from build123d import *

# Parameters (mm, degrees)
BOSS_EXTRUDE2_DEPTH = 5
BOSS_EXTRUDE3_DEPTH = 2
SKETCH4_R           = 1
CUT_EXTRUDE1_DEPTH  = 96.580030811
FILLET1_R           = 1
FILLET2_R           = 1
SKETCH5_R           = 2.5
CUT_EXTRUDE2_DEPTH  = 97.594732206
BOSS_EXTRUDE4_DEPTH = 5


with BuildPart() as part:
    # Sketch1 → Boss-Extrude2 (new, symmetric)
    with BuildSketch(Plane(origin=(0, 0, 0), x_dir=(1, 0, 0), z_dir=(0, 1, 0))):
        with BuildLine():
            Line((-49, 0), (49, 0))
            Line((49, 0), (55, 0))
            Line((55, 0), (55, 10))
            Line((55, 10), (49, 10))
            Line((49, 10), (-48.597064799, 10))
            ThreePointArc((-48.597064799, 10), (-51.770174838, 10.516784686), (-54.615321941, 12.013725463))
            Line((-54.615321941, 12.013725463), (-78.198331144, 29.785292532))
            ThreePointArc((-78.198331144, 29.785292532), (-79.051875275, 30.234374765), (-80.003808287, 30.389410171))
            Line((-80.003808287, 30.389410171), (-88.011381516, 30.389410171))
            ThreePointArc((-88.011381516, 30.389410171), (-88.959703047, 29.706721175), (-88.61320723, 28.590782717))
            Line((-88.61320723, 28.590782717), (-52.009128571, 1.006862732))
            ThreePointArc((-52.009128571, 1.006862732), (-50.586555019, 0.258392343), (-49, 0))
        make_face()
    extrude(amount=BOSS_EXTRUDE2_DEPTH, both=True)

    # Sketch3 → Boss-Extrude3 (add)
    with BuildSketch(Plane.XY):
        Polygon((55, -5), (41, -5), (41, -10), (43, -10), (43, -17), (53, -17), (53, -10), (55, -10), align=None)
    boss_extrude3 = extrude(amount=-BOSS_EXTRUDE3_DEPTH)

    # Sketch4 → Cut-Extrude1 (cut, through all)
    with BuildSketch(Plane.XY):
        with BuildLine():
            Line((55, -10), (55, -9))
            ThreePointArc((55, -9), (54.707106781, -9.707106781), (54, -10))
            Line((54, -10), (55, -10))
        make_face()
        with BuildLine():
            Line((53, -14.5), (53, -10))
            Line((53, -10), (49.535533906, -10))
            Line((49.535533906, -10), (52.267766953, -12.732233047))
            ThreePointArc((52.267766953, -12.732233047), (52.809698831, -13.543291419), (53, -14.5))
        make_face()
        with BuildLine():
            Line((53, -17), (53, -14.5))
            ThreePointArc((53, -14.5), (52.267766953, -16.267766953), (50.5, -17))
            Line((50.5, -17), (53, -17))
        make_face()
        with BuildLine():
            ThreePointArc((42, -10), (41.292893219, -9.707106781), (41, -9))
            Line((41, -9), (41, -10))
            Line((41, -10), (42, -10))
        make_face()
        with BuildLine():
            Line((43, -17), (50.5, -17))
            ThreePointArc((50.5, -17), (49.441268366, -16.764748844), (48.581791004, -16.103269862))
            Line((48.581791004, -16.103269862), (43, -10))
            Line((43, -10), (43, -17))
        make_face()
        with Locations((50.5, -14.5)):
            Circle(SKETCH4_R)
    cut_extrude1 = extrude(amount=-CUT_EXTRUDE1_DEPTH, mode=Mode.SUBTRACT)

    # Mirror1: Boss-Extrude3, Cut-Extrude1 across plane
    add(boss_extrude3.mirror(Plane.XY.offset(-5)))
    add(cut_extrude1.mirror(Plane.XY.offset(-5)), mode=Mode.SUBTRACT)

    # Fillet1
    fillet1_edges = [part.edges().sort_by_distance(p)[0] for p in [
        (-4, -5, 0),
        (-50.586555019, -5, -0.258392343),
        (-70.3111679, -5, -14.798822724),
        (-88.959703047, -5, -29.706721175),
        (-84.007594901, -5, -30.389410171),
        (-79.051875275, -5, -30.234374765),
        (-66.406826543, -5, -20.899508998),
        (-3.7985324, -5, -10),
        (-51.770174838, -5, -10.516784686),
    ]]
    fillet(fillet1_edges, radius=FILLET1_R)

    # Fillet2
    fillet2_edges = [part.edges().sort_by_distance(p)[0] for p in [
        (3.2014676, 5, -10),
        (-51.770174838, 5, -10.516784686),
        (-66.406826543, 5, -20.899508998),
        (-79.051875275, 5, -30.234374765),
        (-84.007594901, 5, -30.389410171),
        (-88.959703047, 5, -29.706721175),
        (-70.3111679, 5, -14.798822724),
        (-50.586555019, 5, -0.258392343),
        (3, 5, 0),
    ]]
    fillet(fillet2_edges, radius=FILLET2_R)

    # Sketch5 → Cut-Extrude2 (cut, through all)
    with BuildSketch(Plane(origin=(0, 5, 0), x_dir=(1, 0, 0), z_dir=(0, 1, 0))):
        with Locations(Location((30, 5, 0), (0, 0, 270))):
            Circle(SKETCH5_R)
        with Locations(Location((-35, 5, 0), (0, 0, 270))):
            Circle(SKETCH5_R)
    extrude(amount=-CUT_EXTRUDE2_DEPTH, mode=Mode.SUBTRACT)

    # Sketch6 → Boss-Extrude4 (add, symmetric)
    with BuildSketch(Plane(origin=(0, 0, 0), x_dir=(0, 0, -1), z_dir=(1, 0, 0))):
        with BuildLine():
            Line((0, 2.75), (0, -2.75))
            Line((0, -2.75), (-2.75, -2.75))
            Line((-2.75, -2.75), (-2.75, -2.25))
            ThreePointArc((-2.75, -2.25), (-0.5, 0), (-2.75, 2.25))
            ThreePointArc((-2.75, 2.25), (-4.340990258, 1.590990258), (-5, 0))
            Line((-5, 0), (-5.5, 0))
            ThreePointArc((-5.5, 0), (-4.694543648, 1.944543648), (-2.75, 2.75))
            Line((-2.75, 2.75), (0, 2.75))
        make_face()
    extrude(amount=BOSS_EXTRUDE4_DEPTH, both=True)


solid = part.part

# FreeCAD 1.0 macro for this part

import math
import FreeCAD as App
import Part
import Sketcher
from FreeCAD import Vector
Q = App.Units.Quantity


def edges_at(feature, points):
    """Names of the edges that pass closest to the given points."""
    edges = feature.Shape.Edges
    near = lambda p: min(range(len(edges)), key=lambda i: edges[i].distToShape(Part.Vertex(*p))[0])
    return sorted({f"Edge{near(p) + 1}" for p in points})

doc = App.newDocument("Part")
body = doc.addObject("PartDesign::Body", "Body")

sketch1 = doc.addObject("Sketcher::SketchObject", "Sketch")
body.addObject(sketch1)
sketch1.AttachmentSupport = (doc.XZ_Plane, [""])
sketch1.MapMode = "FlatFace"
sketch1.addGeometry(Part.LineSegment(Vector(-49, 0, 0), Vector(55, 0, 0)), False)
sketch1.addGeometry(Part.LineSegment(Vector(55, 0, 0), Vector(55, -10, 0)), False)
sketch1.addGeometry(Part.LineSegment(Vector(55, -10, 0), Vector(-48.6, -10, 0)), False)
sketch1.addGeometry(Part.ArcOfCircle(Part.Circle(Vector(-48.6, -20, 0), Vector(0, 0, 1), 10), math.radians(90), math.radians(127)), False)
sketch1.addGeometry(Part.LineSegment(Vector(-54.6, -12, 0), Vector(-78.2, -29.8, 0)), False)
sketch1.addGeometry(Part.ArcOfCircle(Part.Circle(Vector(-80, -27.4, 0), Vector(0, 0, 1), 3), math.radians(-90), math.radians(-53)), False)
sketch1.addGeometry(Part.LineSegment(Vector(-80, -30.4, 0), Vector(-88, -30.4, 0)), False)
sketch1.addGeometry(Part.ArcOfCircle(Part.Circle(Vector(-88, -29.4, 0), Vector(0, 0, 1), 1), math.radians(127), math.radians(270)), False)
sketch1.addGeometry(Part.LineSegment(Vector(-88.6, -28.6, 0), Vector(-52, -1, 0)), False)
sketch1.addGeometry(Part.ArcOfCircle(Part.Circle(Vector(-49, -5, 0), Vector(0, 0, 1), 5), math.radians(90), math.radians(127)), False)
sketch1.addConstraint(Sketcher.Constraint("Coincident", 0, 2, 1, 1))
sketch1.addConstraint(Sketcher.Constraint("Coincident", 1, 2, 2, 1))
sketch1.addConstraint(Sketcher.Constraint("Tangent", 2, 2, 3, 1))
sketch1.addConstraint(Sketcher.Constraint("Tangent", 3, 2, 4, 1))
sketch1.addConstraint(Sketcher.Constraint("Tangent", 4, 2, 5, 2))
sketch1.addConstraint(Sketcher.Constraint("Tangent", 5, 1, 6, 1))
sketch1.addConstraint(Sketcher.Constraint("Tangent", 6, 2, 7, 2))
sketch1.addConstraint(Sketcher.Constraint("Tangent", 7, 1, 8, 1))
sketch1.addConstraint(Sketcher.Constraint("Tangent", 8, 2, 9, 2))
sketch1.addConstraint(Sketcher.Constraint("Tangent", 9, 1, 0, 1))
sketch1.addConstraint(Sketcher.Constraint("Horizontal", 0))
sketch1.addConstraint(Sketcher.Constraint("Vertical", 1))
sketch1.addConstraint(Sketcher.Constraint("Horizontal", 2))
sketch1.addConstraint(Sketcher.Constraint("Horizontal", 6))
sketch1.addConstraint(Sketcher.Constraint("PointOnObject", 0, 2, -1))
sketch1.addConstraint(Sketcher.Constraint("Parallel", 4, 8))
sketch1.addConstraint(Sketcher.Constraint("Radius", 3, Q("10 mm")))
sketch1.addConstraint(Sketcher.Constraint("Radius", 5, Q("3 mm")))
sketch1.addConstraint(Sketcher.Constraint("Radius", 7, Q("1 mm")))
sketch1.addConstraint(Sketcher.Constraint("Radius", 9, Q("5 mm")))
sketch1.addConstraint(Sketcher.Constraint("DistanceX", 0, 1, 0, 2, Q("104 mm")))
sketch1.addConstraint(Sketcher.Constraint("DistanceY", 1, 2, 1, 1, Q("10 mm")))
sketch1.addConstraint(Sketcher.Constraint("DistanceX", 9, 3, -1, 1, Q("49 mm")))
sketch1.addConstraint(Sketcher.Constraint("DistanceX", 7, 1, 5, 3, Q("8.609399 mm")))
sketch1.addConstraint(Sketcher.Constraint("DistanceX", 2, 2, 2, 1, Q("103.597065 mm")))
sketch1.addConstraint(Sketcher.Constraint("DistanceX", 5, 3, -1, 1, Q("80.003808 mm")))
pad1 = doc.addObject("PartDesign::Pad", "Pad")
body.addObject(pad1)
pad1.Profile = sketch1
pad1.Length = 10
pad1.Midplane = True

sketch2 = doc.addObject("Sketcher::SketchObject", "Sketch001")
body.addObject(sketch2)
sketch2.AttachmentSupport = (doc.XY_Plane, [""])
sketch2.MapMode = "FlatFace"
sketch2.addGeometry(Part.LineSegment(Vector(55, -5, 0), Vector(41, -5, 0)), False)
sketch2.addGeometry(Part.LineSegment(Vector(41, -5, 0), Vector(41, -10, 0)), False)
sketch2.addGeometry(Part.LineSegment(Vector(41, -10, 0), Vector(43, -10, 0)), False)
sketch2.addGeometry(Part.LineSegment(Vector(43, -10, 0), Vector(43, -17, 0)), False)
sketch2.addGeometry(Part.LineSegment(Vector(43, -17, 0), Vector(53, -17, 0)), False)
sketch2.addGeometry(Part.LineSegment(Vector(53, -17, 0), Vector(53, -10, 0)), False)
sketch2.addGeometry(Part.LineSegment(Vector(53, -10, 0), Vector(55, -10, 0)), False)
sketch2.addGeometry(Part.LineSegment(Vector(55, -10, 0), Vector(55, -5, 0)), False)
sketch2.addConstraint(Sketcher.Constraint("Coincident", 0, 2, 1, 1))
sketch2.addConstraint(Sketcher.Constraint("Coincident", 1, 2, 2, 1))
sketch2.addConstraint(Sketcher.Constraint("Coincident", 2, 2, 3, 1))
sketch2.addConstraint(Sketcher.Constraint("Coincident", 3, 2, 4, 1))
sketch2.addConstraint(Sketcher.Constraint("Coincident", 4, 2, 5, 1))
sketch2.addConstraint(Sketcher.Constraint("Coincident", 5, 2, 6, 1))
sketch2.addConstraint(Sketcher.Constraint("Coincident", 6, 2, 7, 1))
sketch2.addConstraint(Sketcher.Constraint("Coincident", 7, 2, 0, 1))
sketch2.addConstraint(Sketcher.Constraint("Horizontal", 0))
sketch2.addConstraint(Sketcher.Constraint("Vertical", 1))
sketch2.addConstraint(Sketcher.Constraint("Horizontal", 2))
sketch2.addConstraint(Sketcher.Constraint("Vertical", 3))
sketch2.addConstraint(Sketcher.Constraint("Horizontal", 4))
sketch2.addConstraint(Sketcher.Constraint("Vertical", 5))
sketch2.addConstraint(Sketcher.Constraint("Horizontal", 6))
sketch2.addConstraint(Sketcher.Constraint("Vertical", 7))
sketch2.addConstraint(Sketcher.Constraint("Horizontal", 2, 2, 5, 2))
sketch2.addConstraint(Sketcher.Constraint("Equal", 2, 6))
sketch2.addConstraint(Sketcher.Constraint("DistanceX", 0, 2, 0, 1, Q("14 mm")))
sketch2.addConstraint(Sketcher.Constraint("DistanceX", 2, 1, 2, 2, Q("2 mm")))
sketch2.addConstraint(Sketcher.Constraint("DistanceY", 1, 2, 1, 1, Q("5 mm")))
sketch2.addConstraint(Sketcher.Constraint("DistanceY", 3, 2, 3, 1, Q("7 mm")))
sketch2.addConstraint(Sketcher.Constraint("DistanceX", -1, 1, 0, 2, Q("41 mm")))
sketch2.addConstraint(Sketcher.Constraint("DistanceY", 0, 2, -1, 1, Q("5 mm")))
pad2 = doc.addObject("PartDesign::Pad", "Pad001")
body.addObject(pad2)
pad2.Profile = sketch2
pad2.Length = 2
pad2.Reversed = True

sketch3 = doc.addObject("Sketcher::SketchObject", "Sketch002")
body.addObject(sketch3)
sketch3.AttachmentSupport = (doc.XY_Plane, [""])
sketch3.MapMode = "FlatFace"
sketch3.addGeometry(Part.LineSegment(Vector(55, -10, 0), Vector(55, -9, 0)), False)
sketch3.addGeometry(Part.ArcOfCircle(Part.Circle(Vector(54, -9, 0), Vector(0, 0, 1), 1), math.radians(-90), math.radians(0)), False)
sketch3.addGeometry(Part.LineSegment(Vector(54, -10, 0), Vector(55, -10, 0)), False)
sketch3.addGeometry(Part.LineSegment(Vector(53, -14.5, 0), Vector(53, -10, 0)), False)
sketch3.addGeometry(Part.LineSegment(Vector(53, -10, 0), Vector(49.5, -10, 0)), False)
sketch3.addGeometry(Part.LineSegment(Vector(49.5, -10, 0), Vector(52.3, -12.7, 0)), False)
sketch3.addGeometry(Part.ArcOfCircle(Part.Circle(Vector(50.5, -14.5, 0), Vector(0, 0, 1), 2.5), math.radians(0), math.radians(45)), False)
sketch3.addGeometry(Part.LineSegment(Vector(53, -17, 0), Vector(53, -14.5, 0)), False)
sketch3.addGeometry(Part.ArcOfCircle(Part.Circle(Vector(50.5, -14.5, 0), Vector(0, 0, 1), 2.5), math.radians(-90), math.radians(0)), False)
sketch3.addGeometry(Part.LineSegment(Vector(50.5, -17, 0), Vector(53, -17, 0)), False)
sketch3.addGeometry(Part.ArcOfCircle(Part.Circle(Vector(42, -9, 0), Vector(0, 0, 1), 1), math.radians(-180), math.radians(-90)), False)
sketch3.addGeometry(Part.LineSegment(Vector(41, -9, 0), Vector(41, -10, 0)), False)
sketch3.addGeometry(Part.LineSegment(Vector(41, -10, 0), Vector(42, -10, 0)), False)
sketch3.addGeometry(Part.LineSegment(Vector(43, -17, 0), Vector(50.5, -17, 0)), False)
sketch3.addGeometry(Part.ArcOfCircle(Part.Circle(Vector(50.5, -14.5, 0), Vector(0, 0, 1), 2.5), math.radians(-140), math.radians(-90)), False)
sketch3.addGeometry(Part.LineSegment(Vector(48.6, -16.1, 0), Vector(43, -10, 0)), False)
sketch3.addGeometry(Part.LineSegment(Vector(43, -10, 0), Vector(43, -17, 0)), False)
sketch3.addGeometry(Part.Circle(Vector(50.5, -14.5, 0), Vector(0, 0, 1), 1), False)
sketch3.addConstraint(Sketcher.Constraint("Tangent", 0, 2, 1, 2))
sketch3.addConstraint(Sketcher.Constraint("Tangent", 1, 1, 2, 1))
sketch3.addConstraint(Sketcher.Constraint("Coincident", 2, 2, 0, 1))
sketch3.addConstraint(Sketcher.Constraint("Coincident", 3, 2, 4, 1))
sketch3.addConstraint(Sketcher.Constraint("Coincident", 4, 2, 5, 1))
sketch3.addConstraint(Sketcher.Constraint("Tangent", 5, 2, 6, 2))
sketch3.addConstraint(Sketcher.Constraint("Tangent", 6, 1, 3, 1))
sketch3.addConstraint(Sketcher.Constraint("Tangent", 7, 2, 8, 2))
sketch3.addConstraint(Sketcher.Constraint("Tangent", 8, 1, 9, 1))
sketch3.addConstraint(Sketcher.Constraint("Coincident", 9, 2, 7, 1))
sketch3.addConstraint(Sketcher.Constraint("Tangent", 10, 1, 11, 1))
sketch3.addConstraint(Sketcher.Constraint("Coincident", 11, 2, 12, 1))
sketch3.addConstraint(Sketcher.Constraint("Tangent", 12, 2, 10, 2))
sketch3.addConstraint(Sketcher.Constraint("Tangent", 13, 2, 14, 2))
sketch3.addConstraint(Sketcher.Constraint("Coincident", 14, 1, 15, 1))
sketch3.addConstraint(Sketcher.Constraint("Coincident", 15, 2, 16, 1))
sketch3.addConstraint(Sketcher.Constraint("Coincident", 16, 2, 13, 1))
sketch3.addConstraint(Sketcher.Constraint("Vertical", 0))
sketch3.addConstraint(Sketcher.Constraint("Horizontal", 2))
sketch3.addConstraint(Sketcher.Constraint("Vertical", 3))
sketch3.addConstraint(Sketcher.Constraint("Horizontal", 4))
sketch3.addConstraint(Sketcher.Constraint("Vertical", 7))
sketch3.addConstraint(Sketcher.Constraint("Horizontal", 9))
sketch3.addConstraint(Sketcher.Constraint("Vertical", 11))
sketch3.addConstraint(Sketcher.Constraint("Horizontal", 12))
sketch3.addConstraint(Sketcher.Constraint("Horizontal", 13))
sketch3.addConstraint(Sketcher.Constraint("Vertical", 16))
sketch3.addConstraint(Sketcher.Constraint("Coincident", 8, 3, 6, 3))
sketch3.addConstraint(Sketcher.Constraint("Coincident", 14, 3, 6, 3))
sketch3.addConstraint(Sketcher.Constraint("Coincident", 17, 3, 6, 3))
sketch3.addConstraint(Sketcher.Constraint("Equal", 6, 8))
sketch3.addConstraint(Sketcher.Constraint("Equal", 1, 10))
sketch3.addConstraint(Sketcher.Constraint("Equal", 8, 14))
sketch3.addConstraint(Sketcher.Constraint("Equal", 10, 17))
sketch3.addConstraint(Sketcher.Constraint("Horizontal", 1, 3, 10, 3))
sketch3.addConstraint(Sketcher.Constraint("Horizontal", 2, 2, 3, 2))
sketch3.addConstraint(Sketcher.Constraint("Horizontal", 12, 2, 15, 2))
sketch3.addConstraint(Sketcher.Constraint("Diameter", 17, Q("2 mm")))
sketch3.addConstraint(Sketcher.Constraint("Radius", 6, Q("2.5 mm")))
sketch3.addConstraint(Sketcher.Constraint("DistanceY", 16, 2, 16, 1, Q("7 mm")))
sketch3.addConstraint(Sketcher.Constraint("Angle", 5, Q("-45 deg")))
sketch3.addConstraint(Sketcher.Constraint("DistanceX", 13, 1, 13, 2, Q("7.5 mm")))
sketch3.addConstraint(Sketcher.Constraint("DistanceX", -1, 1, 1, 3, Q("54 mm")))
sketch3.addConstraint(Sketcher.Constraint("DistanceY", 1, 3, -1, 1, Q("9 mm")))
sketch3.addConstraint(Sketcher.Constraint("DistanceX", -1, 1, 10, 3, Q("42 mm")))
sketch3.addConstraint(Sketcher.Constraint("DistanceX", -1, 1, 3, 2, Q("53 mm")))
sketch3.addConstraint(Sketcher.Constraint("Distance", 15, Q("8.27081 mm")))
pocket1 = doc.addObject("PartDesign::Pocket", "Pocket")
body.addObject(pocket1)
pocket1.Profile = sketch3
pocket1.Type = "ThroughAll"
doc.recompute()

datumplane = doc.addObject("PartDesign::Plane", "DatumPlane")
body.addObject(datumplane)
datumplane.AttachmentSupport = (doc.XY_Plane, [""])
datumplane.MapMode = "FlatFace"
datumplane.AttachmentOffset = App.Placement(Vector(0, 0, -5), App.Rotation())
mirrored = doc.addObject("PartDesign::Mirrored", "Mirrored")
body.addObject(mirrored)
mirrored.Originals = [pad2, pocket1]
mirrored.MirrorPlane = (datumplane, [""])
body.Tip = mirrored
doc.recompute()

fillet = doc.addObject("PartDesign::Fillet", "Fillet")
body.addObject(fillet)
fillet.Base = (mirrored, edges_at(mirrored, [
    (-4, -5, 0),
    (-50.587, -5, -0.258),
    (-70.311, -5, -14.799),
    (-88.96, -5, -29.707),
    (-84.008, -5, -30.389),
    (-79.052, -5, -30.234),
    (-66.407, -5, -20.9),
    (-3.799, -5, -10),
    (-51.77, -5, -10.517),
]))
fillet.Radius = 1
doc.recompute()

fillet2 = doc.addObject("PartDesign::Fillet", "Fillet001")
body.addObject(fillet2)
fillet2.Base = (fillet, edges_at(fillet, [
    (3.201, 5, -10),
    (-51.77, 5, -10.517),
    (-66.407, 5, -20.9),
    (-79.052, 5, -30.234),
    (-84.008, 5, -30.389),
    (-88.96, 5, -29.707),
    (-70.311, 5, -14.799),
    (-50.587, 5, -0.258),
    (3, 5, 0),
]))
fillet2.Radius = 1

sketch4 = doc.addObject("Sketcher::SketchObject", "Sketch003")
body.addObject(sketch4)
sketch4.AttachmentSupport = (doc.XZ_Plane, [""])
sketch4.MapMode = "FlatFace"
sketch4.AttachmentOffset = App.Placement(Vector(0, 0, -5), App.Rotation())
sketch4.addGeometry(Part.Circle(Vector(30, -5, 0), Vector(0, 0, 1), 2.5), False)
sketch4.addGeometry(Part.Circle(Vector(-35, -5, 0), Vector(0, 0, 1), 2.5), False)
sketch4.addConstraint(Sketcher.Constraint("Equal", 0, 1))
sketch4.addConstraint(Sketcher.Constraint("Horizontal", 0, 3, 1, 3))
sketch4.addConstraint(Sketcher.Constraint("Diameter", 0, Q("5 mm")))
sketch4.addConstraint(Sketcher.Constraint("DistanceX", -1, 1, 0, 3, Q("30 mm")))
sketch4.addConstraint(Sketcher.Constraint("DistanceY", 0, 3, -1, 1, Q("5 mm")))
sketch4.addConstraint(Sketcher.Constraint("DistanceX", 1, 3, -1, 1, Q("35 mm")))
pocket2 = doc.addObject("PartDesign::Pocket", "Pocket001")
body.addObject(pocket2)
pocket2.Profile = sketch4
pocket2.Type = "ThroughAll"
pocket2.Reversed = True

sketch5 = doc.addObject("Sketcher::SketchObject", "Sketch004")
body.addObject(sketch5)
sketch5.AttachmentSupport = (doc.YZ_Plane, [""])
sketch5.MapMode = "FlatFace"
sketch5.addGeometry(Part.LineSegment(Vector(-2.8, 0, 0), Vector(2.8, 0, 0)), False)
sketch5.addGeometry(Part.LineSegment(Vector(2.8, 0, 0), Vector(2.8, 2.8, 0)), False)
sketch5.addGeometry(Part.ArcOfCircle(Part.Circle(Vector(0, 2.7, 0), Vector(0, 0, 1), 2.8), math.radians(0), math.radians(90)), False)
sketch5.addGeometry(Part.LineSegment(Vector(0, 5.5, 0), Vector(0, 5, 0)), False)
sketch5.addGeometry(Part.ArcOfCircle(Part.Circle(Vector(0, 2.8, 0), Vector(0, 0, 1), 2.2), math.radians(0), math.radians(90)), False)
sketch5.addGeometry(Part.ArcOfCircle(Part.Circle(Vector(0, 2.8, 0), Vector(0, 0, 1), 2.2), math.radians(180), math.radians(360)), False)
sketch5.addGeometry(Part.LineSegment(Vector(-2.2, 2.8, 0), Vector(-2.8, 2.8, 0)), False)
sketch5.addGeometry(Part.LineSegment(Vector(-2.8, 2.8, 0), Vector(-2.8, 0, 0)), False)
sketch5.addConstraint(Sketcher.Constraint("Coincident", 0, 2, 1, 1))
sketch5.addConstraint(Sketcher.Constraint("Tangent", 1, 2, 2, 1))
sketch5.addConstraint(Sketcher.Constraint("Coincident", 2, 2, 3, 1))
sketch5.addConstraint(Sketcher.Constraint("Coincident", 3, 2, 4, 2))
sketch5.addConstraint(Sketcher.Constraint("Tangent", 4, 1, 5, 2))
sketch5.addConstraint(Sketcher.Constraint("Coincident", 5, 1, 6, 1))
sketch5.addConstraint(Sketcher.Constraint("Coincident", 6, 2, 7, 1))
sketch5.addConstraint(Sketcher.Constraint("Coincident", 7, 2, 0, 1))
sketch5.addConstraint(Sketcher.Constraint("Horizontal", 0))
sketch5.addConstraint(Sketcher.Constraint("Vertical", 1))
sketch5.addConstraint(Sketcher.Constraint("Vertical", 3))
sketch5.addConstraint(Sketcher.Constraint("Horizontal", 6))
sketch5.addConstraint(Sketcher.Constraint("Vertical", 7))
sketch5.addConstraint(Sketcher.Constraint("Coincident", 4, 3, 2, 3))
sketch5.addConstraint(Sketcher.Constraint("Equal", 4, 5))
sketch5.addConstraint(Sketcher.Constraint("Symmetric", 0, 2, 7, 2, -1, 1))
sketch5.addConstraint(Sketcher.Constraint("Symmetric", 4, 1, 5, 1, -2))
sketch5.addConstraint(Sketcher.Constraint("PointOnObject", 2, 2, -2))
sketch5.addConstraint(Sketcher.Constraint("Horizontal", 1, 2, 4, 1))
sketch5.addConstraint(Sketcher.Constraint("Radius", 2, Q("2.75 mm")))
sketch5.addConstraint(Sketcher.Constraint("Radius", 4, Q("2.25 mm")))
sketch5.addConstraint(Sketcher.Constraint("DistanceY", -1, 1, 3, 2, Q("5 mm")))
pad3 = doc.addObject("PartDesign::Pad", "Pad002")
body.addObject(pad3)
pad3.Profile = sketch5
pad3.Length = 10
pad3.Midplane = True

doc.recompute()
